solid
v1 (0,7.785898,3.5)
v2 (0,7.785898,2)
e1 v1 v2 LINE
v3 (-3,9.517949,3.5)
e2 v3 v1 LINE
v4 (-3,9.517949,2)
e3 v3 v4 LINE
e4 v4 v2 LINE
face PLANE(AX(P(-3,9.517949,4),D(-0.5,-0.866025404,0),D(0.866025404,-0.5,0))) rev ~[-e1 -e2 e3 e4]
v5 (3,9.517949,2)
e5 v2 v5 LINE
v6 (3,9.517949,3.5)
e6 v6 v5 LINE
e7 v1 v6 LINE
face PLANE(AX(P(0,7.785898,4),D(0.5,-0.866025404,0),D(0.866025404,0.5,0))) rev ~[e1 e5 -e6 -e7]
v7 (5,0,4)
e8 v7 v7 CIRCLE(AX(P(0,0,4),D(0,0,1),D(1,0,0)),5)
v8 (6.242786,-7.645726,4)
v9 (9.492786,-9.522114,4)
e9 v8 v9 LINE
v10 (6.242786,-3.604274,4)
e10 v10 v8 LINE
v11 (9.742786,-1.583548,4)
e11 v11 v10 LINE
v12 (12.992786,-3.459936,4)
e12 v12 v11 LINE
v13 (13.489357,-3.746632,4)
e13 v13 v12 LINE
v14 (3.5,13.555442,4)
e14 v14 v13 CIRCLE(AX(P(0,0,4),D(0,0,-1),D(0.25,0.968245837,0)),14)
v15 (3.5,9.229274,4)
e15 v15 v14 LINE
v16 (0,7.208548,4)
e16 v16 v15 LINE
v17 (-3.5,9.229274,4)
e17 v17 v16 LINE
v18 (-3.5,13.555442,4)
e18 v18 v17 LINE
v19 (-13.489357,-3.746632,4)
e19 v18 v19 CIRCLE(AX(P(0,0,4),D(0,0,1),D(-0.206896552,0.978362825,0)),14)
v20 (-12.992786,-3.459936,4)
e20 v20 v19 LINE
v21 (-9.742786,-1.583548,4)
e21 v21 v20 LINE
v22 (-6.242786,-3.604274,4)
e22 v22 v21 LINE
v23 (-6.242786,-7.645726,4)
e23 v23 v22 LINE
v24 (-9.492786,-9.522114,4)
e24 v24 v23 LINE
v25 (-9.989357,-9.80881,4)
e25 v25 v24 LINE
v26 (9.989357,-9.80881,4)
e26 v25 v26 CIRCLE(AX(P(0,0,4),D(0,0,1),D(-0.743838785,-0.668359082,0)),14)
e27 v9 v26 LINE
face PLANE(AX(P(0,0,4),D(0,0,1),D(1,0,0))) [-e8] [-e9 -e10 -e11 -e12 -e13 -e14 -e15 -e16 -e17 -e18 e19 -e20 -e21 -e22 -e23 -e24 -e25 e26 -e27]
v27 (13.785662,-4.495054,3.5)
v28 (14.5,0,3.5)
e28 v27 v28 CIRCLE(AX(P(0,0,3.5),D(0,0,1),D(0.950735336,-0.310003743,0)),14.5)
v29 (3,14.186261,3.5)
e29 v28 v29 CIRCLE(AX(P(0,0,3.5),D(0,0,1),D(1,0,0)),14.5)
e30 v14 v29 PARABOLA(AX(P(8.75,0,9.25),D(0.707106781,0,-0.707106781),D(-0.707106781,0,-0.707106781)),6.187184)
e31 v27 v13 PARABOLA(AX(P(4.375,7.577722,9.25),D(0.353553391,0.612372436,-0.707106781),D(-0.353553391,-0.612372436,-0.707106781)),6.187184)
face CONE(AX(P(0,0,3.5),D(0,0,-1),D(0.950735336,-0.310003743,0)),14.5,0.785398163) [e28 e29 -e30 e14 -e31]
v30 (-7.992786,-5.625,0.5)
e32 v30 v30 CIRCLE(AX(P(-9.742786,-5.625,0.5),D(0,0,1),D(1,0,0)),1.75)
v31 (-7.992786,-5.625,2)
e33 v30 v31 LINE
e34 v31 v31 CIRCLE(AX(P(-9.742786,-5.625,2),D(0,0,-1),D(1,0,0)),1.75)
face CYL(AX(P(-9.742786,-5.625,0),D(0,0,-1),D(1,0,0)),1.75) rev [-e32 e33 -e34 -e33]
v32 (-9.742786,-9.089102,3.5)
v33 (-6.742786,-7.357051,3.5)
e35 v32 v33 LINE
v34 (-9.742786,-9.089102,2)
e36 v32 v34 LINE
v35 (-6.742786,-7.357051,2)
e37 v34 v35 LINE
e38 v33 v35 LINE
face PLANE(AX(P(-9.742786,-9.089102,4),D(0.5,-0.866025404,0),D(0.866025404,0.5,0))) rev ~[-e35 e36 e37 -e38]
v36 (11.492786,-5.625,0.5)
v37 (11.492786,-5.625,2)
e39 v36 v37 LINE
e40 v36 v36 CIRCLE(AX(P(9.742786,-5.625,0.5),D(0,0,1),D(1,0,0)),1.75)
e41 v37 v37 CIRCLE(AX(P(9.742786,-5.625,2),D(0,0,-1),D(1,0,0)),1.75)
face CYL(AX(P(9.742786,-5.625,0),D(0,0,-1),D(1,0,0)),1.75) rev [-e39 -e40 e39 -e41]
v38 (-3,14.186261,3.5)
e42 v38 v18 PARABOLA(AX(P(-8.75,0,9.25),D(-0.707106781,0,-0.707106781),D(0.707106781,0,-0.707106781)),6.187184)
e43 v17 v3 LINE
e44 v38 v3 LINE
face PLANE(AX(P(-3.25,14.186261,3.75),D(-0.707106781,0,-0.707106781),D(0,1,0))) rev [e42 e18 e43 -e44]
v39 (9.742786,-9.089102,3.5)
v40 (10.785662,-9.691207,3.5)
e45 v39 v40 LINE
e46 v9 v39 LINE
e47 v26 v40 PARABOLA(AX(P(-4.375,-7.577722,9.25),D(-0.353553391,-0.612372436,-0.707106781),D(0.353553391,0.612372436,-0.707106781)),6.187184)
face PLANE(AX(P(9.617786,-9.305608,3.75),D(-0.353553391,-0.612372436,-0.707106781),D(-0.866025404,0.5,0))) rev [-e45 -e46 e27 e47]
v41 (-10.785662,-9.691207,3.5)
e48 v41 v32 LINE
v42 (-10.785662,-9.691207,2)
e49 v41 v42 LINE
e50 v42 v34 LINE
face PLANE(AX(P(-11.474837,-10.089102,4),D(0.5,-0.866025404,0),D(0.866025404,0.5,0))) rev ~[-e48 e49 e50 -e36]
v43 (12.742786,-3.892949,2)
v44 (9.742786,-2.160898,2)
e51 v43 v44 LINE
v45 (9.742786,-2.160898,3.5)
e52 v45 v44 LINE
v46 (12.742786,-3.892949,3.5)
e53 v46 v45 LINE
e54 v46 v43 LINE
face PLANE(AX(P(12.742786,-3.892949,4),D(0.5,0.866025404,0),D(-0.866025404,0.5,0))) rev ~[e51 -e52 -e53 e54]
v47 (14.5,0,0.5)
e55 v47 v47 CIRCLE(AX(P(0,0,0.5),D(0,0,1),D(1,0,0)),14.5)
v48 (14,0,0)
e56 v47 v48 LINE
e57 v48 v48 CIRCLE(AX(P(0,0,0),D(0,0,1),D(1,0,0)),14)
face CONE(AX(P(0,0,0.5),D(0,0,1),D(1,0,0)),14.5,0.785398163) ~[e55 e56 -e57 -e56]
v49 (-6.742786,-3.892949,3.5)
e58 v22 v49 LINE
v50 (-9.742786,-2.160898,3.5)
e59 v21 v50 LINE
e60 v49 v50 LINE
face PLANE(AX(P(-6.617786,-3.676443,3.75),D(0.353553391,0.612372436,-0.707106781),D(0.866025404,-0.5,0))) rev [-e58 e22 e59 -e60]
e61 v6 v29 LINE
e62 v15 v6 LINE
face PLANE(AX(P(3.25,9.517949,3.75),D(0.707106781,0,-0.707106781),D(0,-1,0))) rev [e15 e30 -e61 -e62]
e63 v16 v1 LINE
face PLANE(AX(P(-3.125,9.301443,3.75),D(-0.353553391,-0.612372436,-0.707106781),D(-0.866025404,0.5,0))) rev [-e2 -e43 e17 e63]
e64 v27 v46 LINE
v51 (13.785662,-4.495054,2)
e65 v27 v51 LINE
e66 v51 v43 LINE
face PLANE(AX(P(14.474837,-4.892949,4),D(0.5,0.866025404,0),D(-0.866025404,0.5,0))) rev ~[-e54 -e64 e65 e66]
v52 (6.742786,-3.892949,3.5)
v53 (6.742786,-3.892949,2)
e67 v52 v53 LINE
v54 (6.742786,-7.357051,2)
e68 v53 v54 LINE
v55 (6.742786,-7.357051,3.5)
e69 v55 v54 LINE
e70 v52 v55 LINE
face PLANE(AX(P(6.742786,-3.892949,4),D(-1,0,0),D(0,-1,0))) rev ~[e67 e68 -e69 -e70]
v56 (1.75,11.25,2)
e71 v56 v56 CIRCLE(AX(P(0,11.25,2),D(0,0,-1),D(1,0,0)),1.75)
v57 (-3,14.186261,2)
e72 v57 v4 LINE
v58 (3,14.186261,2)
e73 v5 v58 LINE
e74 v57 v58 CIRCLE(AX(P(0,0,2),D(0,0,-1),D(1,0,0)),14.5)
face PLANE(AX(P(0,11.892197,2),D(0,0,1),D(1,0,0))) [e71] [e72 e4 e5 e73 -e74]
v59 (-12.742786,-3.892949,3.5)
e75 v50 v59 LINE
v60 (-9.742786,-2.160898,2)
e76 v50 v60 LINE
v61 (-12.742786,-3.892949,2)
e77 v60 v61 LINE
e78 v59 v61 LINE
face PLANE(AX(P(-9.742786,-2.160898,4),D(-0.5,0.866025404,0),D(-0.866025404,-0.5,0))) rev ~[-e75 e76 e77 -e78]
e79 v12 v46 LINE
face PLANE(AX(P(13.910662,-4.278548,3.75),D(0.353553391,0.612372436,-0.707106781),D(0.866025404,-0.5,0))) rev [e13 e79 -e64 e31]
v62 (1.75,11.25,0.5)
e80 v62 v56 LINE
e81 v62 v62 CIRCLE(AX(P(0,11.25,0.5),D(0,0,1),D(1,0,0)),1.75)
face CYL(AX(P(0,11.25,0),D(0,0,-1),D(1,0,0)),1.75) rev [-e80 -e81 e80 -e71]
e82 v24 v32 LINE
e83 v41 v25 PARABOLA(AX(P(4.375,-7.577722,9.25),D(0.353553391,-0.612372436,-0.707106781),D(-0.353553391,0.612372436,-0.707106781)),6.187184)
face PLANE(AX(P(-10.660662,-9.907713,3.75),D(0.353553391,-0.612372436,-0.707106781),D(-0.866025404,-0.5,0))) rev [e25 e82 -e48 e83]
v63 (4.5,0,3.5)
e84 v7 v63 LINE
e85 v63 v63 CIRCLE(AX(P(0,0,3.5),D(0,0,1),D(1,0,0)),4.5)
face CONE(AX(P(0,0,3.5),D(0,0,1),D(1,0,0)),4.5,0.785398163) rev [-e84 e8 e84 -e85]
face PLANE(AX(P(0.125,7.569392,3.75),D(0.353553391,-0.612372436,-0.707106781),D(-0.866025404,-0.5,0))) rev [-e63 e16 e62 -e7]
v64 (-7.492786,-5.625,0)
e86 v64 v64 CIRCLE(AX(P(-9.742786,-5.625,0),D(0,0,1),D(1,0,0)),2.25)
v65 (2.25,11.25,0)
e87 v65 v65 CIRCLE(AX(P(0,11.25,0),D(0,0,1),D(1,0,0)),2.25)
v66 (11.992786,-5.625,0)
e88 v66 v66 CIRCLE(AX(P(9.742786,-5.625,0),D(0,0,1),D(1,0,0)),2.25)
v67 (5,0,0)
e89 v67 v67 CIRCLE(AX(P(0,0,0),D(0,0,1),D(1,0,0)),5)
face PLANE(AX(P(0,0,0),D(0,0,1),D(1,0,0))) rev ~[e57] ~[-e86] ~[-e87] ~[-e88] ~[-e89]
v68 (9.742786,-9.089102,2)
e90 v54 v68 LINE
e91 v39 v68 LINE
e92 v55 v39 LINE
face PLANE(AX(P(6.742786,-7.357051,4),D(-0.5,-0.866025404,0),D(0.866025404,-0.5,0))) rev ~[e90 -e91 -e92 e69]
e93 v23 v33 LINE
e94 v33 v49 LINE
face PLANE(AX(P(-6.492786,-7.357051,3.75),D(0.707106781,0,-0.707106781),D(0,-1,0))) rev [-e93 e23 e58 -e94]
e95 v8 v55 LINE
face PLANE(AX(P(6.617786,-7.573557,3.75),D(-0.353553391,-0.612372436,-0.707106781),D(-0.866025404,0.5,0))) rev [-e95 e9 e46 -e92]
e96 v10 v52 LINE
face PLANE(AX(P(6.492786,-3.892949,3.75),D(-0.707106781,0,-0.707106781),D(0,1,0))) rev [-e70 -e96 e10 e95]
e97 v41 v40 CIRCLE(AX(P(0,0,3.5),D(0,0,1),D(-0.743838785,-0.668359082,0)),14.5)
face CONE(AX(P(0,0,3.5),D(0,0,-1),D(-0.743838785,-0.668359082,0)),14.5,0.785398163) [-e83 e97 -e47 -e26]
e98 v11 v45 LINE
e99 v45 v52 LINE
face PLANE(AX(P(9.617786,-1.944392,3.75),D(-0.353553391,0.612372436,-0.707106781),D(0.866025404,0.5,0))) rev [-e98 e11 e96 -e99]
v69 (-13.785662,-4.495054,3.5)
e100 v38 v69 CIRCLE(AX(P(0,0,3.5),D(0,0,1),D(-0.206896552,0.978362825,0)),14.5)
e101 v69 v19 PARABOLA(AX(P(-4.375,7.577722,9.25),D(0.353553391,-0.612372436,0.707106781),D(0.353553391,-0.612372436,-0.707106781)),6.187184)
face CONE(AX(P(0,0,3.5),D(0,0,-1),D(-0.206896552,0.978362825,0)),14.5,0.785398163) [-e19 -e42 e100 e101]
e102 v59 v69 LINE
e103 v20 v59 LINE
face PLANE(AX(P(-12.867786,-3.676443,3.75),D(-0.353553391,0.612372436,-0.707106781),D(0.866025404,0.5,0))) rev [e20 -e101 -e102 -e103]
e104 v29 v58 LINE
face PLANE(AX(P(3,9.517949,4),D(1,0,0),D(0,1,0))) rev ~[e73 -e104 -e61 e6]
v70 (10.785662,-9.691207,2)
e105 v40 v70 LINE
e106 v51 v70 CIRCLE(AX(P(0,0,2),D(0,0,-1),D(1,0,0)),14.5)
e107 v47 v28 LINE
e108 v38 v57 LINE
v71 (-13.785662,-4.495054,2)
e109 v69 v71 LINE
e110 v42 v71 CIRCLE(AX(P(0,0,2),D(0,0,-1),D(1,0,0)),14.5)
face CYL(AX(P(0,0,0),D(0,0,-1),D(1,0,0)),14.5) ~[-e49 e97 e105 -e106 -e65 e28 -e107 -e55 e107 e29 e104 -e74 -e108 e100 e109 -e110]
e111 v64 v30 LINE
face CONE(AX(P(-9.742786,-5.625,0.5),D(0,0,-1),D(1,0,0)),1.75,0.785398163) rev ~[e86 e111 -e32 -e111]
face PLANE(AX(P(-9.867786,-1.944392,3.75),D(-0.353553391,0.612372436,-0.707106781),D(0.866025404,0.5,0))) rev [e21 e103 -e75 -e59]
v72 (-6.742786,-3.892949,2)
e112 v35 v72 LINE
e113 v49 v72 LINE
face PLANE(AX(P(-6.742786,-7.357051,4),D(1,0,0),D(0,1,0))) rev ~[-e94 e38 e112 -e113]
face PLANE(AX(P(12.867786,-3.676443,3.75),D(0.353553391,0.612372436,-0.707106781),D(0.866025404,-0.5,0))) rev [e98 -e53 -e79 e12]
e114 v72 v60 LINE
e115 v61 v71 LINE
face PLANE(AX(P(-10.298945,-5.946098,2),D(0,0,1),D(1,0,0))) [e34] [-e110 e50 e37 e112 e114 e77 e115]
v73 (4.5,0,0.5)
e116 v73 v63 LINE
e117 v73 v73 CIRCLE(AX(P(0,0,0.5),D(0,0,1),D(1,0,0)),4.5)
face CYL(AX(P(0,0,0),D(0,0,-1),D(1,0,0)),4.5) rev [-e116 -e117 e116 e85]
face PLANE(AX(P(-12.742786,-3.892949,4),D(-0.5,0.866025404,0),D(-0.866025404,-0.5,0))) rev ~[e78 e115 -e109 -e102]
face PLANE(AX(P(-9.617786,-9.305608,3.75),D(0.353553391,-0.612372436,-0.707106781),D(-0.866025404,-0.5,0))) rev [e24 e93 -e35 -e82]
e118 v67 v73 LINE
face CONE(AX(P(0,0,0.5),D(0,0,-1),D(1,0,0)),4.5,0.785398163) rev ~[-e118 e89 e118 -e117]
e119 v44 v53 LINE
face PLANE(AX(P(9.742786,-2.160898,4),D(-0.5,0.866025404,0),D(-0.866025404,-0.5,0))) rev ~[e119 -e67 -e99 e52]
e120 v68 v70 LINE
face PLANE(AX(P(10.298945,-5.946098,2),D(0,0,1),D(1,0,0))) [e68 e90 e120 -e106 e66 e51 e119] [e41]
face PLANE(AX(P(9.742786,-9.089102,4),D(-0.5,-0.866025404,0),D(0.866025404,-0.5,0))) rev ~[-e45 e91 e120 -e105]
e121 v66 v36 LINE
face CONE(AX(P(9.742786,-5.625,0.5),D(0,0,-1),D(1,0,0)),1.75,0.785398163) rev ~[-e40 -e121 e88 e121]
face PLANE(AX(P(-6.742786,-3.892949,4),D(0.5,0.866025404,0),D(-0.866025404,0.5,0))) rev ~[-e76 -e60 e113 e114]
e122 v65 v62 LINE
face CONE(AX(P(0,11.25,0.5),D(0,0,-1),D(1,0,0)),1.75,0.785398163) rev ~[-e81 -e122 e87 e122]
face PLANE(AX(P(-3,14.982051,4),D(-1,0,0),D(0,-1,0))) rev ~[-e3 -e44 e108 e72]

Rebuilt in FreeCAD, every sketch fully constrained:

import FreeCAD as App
import Part
import Sketcher
from FreeCAD import Vector
Q = App.Units.Quantity


def edges_at(feature, points):
    """Names of the edges that pass closest to the given points."""
    edges = feature.Shape.Edges
    near = lambda p: min(range(len(edges)), key=lambda i: edges[i].distToShape(Part.Vertex(*p))[0])
    return sorted({f"Edge{near(p) + 1}" for p in points})

doc = App.newDocument("Part")
body = doc.addObject("PartDesign::Body", "Body")

# Sketch on XY plane
sketch1 = doc.addObject("Sketcher::SketchObject", "Sketch")
body.addObject(sketch1)
sketch1.AttachmentSupport = (doc.XY_Plane, [""])
sketch1.MapMode = "FlatFace"
sketch1.addGeometry([
    Part.Circle(Vector(0, 0, 0), Vector(0, 0, 1), 14.5),  # 0
    Part.Circle(Vector(-9.7, -5.6, 0), Vector(0, 0, 1), 1.8),  # 1
    Part.Circle(Vector(9.7, -5.6, 0), Vector(0, 0, 1), 1.8),  # 2
    Part.Circle(Vector(0, 0, 0), Vector(0, 0, 1), 4.5),  # 3
    Part.Circle(Vector(0, 11.2, 0), Vector(0, 0, 1), 1.8),  # 4
], False)
sketch1.addConstraint([
    Sketcher.Constraint("Coincident", 0, 3, -1, 1),
    Sketcher.Constraint("Coincident", 3, 3, -1, 1),
    Sketcher.Constraint("Equal", 1, 2),
    Sketcher.Constraint("Equal", 2, 4),
    Sketcher.Constraint("Symmetric", 1, 3, 2, 3, -2),
    Sketcher.Constraint("PointOnObject", 4, 3, -2),
    Sketcher.Constraint("Diameter", 0, 29.0),
    Sketcher.Constraint("Diameter", 3, 9.0),
    Sketcher.Constraint("Diameter", 1, 3.5),
    Sketcher.Constraint("DistanceY", -1, 1, 4, 3, 11.25),
    Sketcher.Constraint("DistanceY", 1, 3, -1, 1, 5.625),
    Sketcher.Constraint("DistanceX", 1, 3, 2, 3, 19.485572),
])
pad1 = doc.addObject("PartDesign::Pad", "Pad")
body.addObject(pad1)
pad1.Profile = sketch1
pad1.Length = 4

# Sketch on XY plane
sketch2 = doc.addObject("Sketcher::SketchObject", "Sketch001")
body.addObject(sketch2)
sketch2.AttachmentSupport = (doc.XY_Plane, [""])
sketch2.MapMode = "FlatFace"
sketch2.AttachmentOffset = App.Placement(Vector(0, 0, 4), App.Rotation())
sketch2.addGeometry([
    Part.LineSegment(Vector(12.7, -3.9, 0), Vector(9.7, -2.2, 0)),  # 0
    Part.LineSegment(Vector(9.7, -2.2, 0), Vector(6.7, -3.9, 0)),  # 1
    Part.LineSegment(Vector(6.7, -3.9, 0), Vector(6.7, -7.4, 0)),  # 2
    Part.LineSegment(Vector(6.7, -7.4, 0), Vector(9.7, -9.1, 0)),  # 3
    Part.LineSegment(Vector(9.7, -9.1, 0), Vector(11.5, -10.1, 0)),  # 4
    Part.LineSegment(Vector(11.5, -10.1, 0), Vector(14.5, -4.9, 0)),  # 5
    Part.LineSegment(Vector(14.5, -4.9, 0), Vector(12.7, -3.9, 0)),  # 6
    Part.LineSegment(Vector(-3, 9.5, 0), Vector(0, 7.8, 0)),  # 7
    Part.LineSegment(Vector(0, 7.8, 0), Vector(3, 9.5, 0)),  # 8
    Part.LineSegment(Vector(3, 9.5, 0), Vector(3, 15, 0)),  # 9
    Part.LineSegment(Vector(3, 15, 0), Vector(-3, 15, 0)),  # 10
    Part.LineSegment(Vector(-3, 15, 0), Vector(-3, 9.5, 0)),  # 11
    Part.LineSegment(Vector(-9.7, -9.1, 0), Vector(-6.7, -7.4, 0)),  # 12
    Part.LineSegment(Vector(-6.7, -7.4, 0), Vector(-6.7, -3.9, 0)),  # 13
    Part.LineSegment(Vector(-6.7, -3.9, 0), Vector(-9.7, -2.2, 0)),  # 14
    Part.LineSegment(Vector(-9.7, -2.2, 0), Vector(-12.7, -3.9, 0)),  # 15
    Part.LineSegment(Vector(-12.7, -3.9, 0), Vector(-14.5, -4.9, 0)),  # 16
    Part.LineSegment(Vector(-14.5, -4.9, 0), Vector(-11.5, -10.1, 0)),  # 17
    Part.LineSegment(Vector(-11.5, -10.1, 0), Vector(-9.7, -9.1, 0)),  # 18
], False)
sketch2.addConstraint([
    Sketcher.Constraint("Coincident", 0, 2, 1, 1),
    Sketcher.Constraint("Coincident", 1, 2, 2, 1),
    Sketcher.Constraint("Coincident", 2, 2, 3, 1),
    Sketcher.Constraint("Coincident", 3, 2, 4, 1),
    Sketcher.Constraint("Coincident", 4, 2, 5, 1),
    Sketcher.Constraint("Coincident", 5, 2, 6, 1),
    Sketcher.Constraint("Coincident", 6, 2, 0, 1),
    Sketcher.Constraint("Coincident", 7, 2, 8, 1),
    Sketcher.Constraint("Coincident", 8, 2, 9, 1),
    Sketcher.Constraint("Coincident", 9, 2, 10, 1),
    Sketcher.Constraint("Coincident", 10, 2, 11, 1),
    Sketcher.Constraint("Coincident", 11, 2, 7, 1),
    Sketcher.Constraint("Coincident", 12, 2, 13, 1),
    Sketcher.Constraint("Coincident", 13, 2, 14, 1),
    Sketcher.Constraint("Coincident", 14, 2, 15, 1),
    Sketcher.Constraint("Coincident", 15, 2, 16, 1),
    Sketcher.Constraint("Coincident", 16, 2, 17, 1),
    Sketcher.Constraint("Coincident", 17, 2, 18, 1),
    Sketcher.Constraint("Coincident", 18, 2, 12, 1),
    Sketcher.Constraint("Vertical", 2),
    Sketcher.Constraint("Vertical", 9),
    Sketcher.Constraint("Horizontal", 10),
    Sketcher.Constraint("Vertical", 11),
    Sketcher.Constraint("Vertical", 13),
    Sketcher.Constraint("Symmetric", 8, 2, 11, 2, -2),
    Sketcher.Constraint("Symmetric", 2, 2, 12, 2, -2),
    Sketcher.Constraint("Symmetric", 0, 2, 14, 2, -2),
    Sketcher.Constraint("Symmetric", 6, 2, 15, 2, -2),
    Sketcher.Constraint("Symmetric", 5, 2, 16, 2, -2),
    Sketcher.Constraint("Symmetric", 4, 2, 17, 2, -2),
    Sketcher.Constraint("Symmetric", 3, 2, 18, 2, -2),
    Sketcher.Constraint("PointOnObject", 7, 2, -2),
    Sketcher.Constraint("Parallel", 0, 3),
    Sketcher.Constraint("Parallel", 3, 4),
    Sketcher.Constraint("Perpendicular", 4, 5),
    Sketcher.Constraint("Perpendicular", 5, 6),
    Sketcher.Constraint("Parallel", 6, 7),
    Sketcher.Constraint("Parallel", 1, 8),
    Sketcher.Constraint("Parallel", 7, 14),
    Sketcher.Constraint("Horizontal", 1, 2, 6, 2),
    Sketcher.Constraint("Vertical", 0, 2, 3, 2),
    Sketcher.Constraint("Equal", 4, 6),
    Sketcher.Constraint("Equal", 3, 7),
    Sketcher.Constraint("DistanceX", 10, 2, 10, 1, 6.0),
    Sketcher.Constraint("Angle", 0, Q("150 deg")),
    Sketcher.Constraint("Distance", 4, 2.0),
    Sketcher.Constraint("DistanceY", 9, 1, 9, 2, 5.464102),
    Sketcher.Constraint("DistanceY", 2, 2, 8, 2, 16.875),
    Sketcher.Constraint("DistanceY", 0, 2, -1, 1, 2.160898),
    Sketcher.Constraint("DistanceX", 12, 2, 2, 2, 13.485572),
])
pocket1 = doc.addObject("PartDesign::Pocket", "Pocket")
body.addObject(pocket1)
pocket1.Profile = sketch2
pocket1.Length = 2
doc.recompute()

chamfer = doc.addObject("PartDesign::Chamfer", "Chamfer")
body.addObject(chamfer)
chamfer.Base = (pocket1, edges_at(pocket1, [
    (-11.493, -5.625, 0),
    (-4.5, 0, 0),
    (-4.5, 0, 4),
    (-14.5, 0, 0),
    (-12.557, 7.25, 4),
    (3, 11.852, 4),
    (-3, 11.852, 4),
    (-1.5, 8.652, 4),
    (1.5, 8.652, 4),
    (11.264, 9.131, 4),
    (-1.75, 11.25, 0),
    (8.243, -8.223, 4),
    (11.243, -3.027, 4),
    (8.243, -3.027, 4),
    (6.743, -5.625, 4),
    (0, -14.5, 4),
    (-11.243, -3.027, 4),
    (-8.243, -8.223, 4),
    (-6.743, -5.625, 4),
    (-8.243, -3.027, 4),
    (7.993, -5.625, 0),
]))
chamfer.Size = 0.5

doc.recompute()
